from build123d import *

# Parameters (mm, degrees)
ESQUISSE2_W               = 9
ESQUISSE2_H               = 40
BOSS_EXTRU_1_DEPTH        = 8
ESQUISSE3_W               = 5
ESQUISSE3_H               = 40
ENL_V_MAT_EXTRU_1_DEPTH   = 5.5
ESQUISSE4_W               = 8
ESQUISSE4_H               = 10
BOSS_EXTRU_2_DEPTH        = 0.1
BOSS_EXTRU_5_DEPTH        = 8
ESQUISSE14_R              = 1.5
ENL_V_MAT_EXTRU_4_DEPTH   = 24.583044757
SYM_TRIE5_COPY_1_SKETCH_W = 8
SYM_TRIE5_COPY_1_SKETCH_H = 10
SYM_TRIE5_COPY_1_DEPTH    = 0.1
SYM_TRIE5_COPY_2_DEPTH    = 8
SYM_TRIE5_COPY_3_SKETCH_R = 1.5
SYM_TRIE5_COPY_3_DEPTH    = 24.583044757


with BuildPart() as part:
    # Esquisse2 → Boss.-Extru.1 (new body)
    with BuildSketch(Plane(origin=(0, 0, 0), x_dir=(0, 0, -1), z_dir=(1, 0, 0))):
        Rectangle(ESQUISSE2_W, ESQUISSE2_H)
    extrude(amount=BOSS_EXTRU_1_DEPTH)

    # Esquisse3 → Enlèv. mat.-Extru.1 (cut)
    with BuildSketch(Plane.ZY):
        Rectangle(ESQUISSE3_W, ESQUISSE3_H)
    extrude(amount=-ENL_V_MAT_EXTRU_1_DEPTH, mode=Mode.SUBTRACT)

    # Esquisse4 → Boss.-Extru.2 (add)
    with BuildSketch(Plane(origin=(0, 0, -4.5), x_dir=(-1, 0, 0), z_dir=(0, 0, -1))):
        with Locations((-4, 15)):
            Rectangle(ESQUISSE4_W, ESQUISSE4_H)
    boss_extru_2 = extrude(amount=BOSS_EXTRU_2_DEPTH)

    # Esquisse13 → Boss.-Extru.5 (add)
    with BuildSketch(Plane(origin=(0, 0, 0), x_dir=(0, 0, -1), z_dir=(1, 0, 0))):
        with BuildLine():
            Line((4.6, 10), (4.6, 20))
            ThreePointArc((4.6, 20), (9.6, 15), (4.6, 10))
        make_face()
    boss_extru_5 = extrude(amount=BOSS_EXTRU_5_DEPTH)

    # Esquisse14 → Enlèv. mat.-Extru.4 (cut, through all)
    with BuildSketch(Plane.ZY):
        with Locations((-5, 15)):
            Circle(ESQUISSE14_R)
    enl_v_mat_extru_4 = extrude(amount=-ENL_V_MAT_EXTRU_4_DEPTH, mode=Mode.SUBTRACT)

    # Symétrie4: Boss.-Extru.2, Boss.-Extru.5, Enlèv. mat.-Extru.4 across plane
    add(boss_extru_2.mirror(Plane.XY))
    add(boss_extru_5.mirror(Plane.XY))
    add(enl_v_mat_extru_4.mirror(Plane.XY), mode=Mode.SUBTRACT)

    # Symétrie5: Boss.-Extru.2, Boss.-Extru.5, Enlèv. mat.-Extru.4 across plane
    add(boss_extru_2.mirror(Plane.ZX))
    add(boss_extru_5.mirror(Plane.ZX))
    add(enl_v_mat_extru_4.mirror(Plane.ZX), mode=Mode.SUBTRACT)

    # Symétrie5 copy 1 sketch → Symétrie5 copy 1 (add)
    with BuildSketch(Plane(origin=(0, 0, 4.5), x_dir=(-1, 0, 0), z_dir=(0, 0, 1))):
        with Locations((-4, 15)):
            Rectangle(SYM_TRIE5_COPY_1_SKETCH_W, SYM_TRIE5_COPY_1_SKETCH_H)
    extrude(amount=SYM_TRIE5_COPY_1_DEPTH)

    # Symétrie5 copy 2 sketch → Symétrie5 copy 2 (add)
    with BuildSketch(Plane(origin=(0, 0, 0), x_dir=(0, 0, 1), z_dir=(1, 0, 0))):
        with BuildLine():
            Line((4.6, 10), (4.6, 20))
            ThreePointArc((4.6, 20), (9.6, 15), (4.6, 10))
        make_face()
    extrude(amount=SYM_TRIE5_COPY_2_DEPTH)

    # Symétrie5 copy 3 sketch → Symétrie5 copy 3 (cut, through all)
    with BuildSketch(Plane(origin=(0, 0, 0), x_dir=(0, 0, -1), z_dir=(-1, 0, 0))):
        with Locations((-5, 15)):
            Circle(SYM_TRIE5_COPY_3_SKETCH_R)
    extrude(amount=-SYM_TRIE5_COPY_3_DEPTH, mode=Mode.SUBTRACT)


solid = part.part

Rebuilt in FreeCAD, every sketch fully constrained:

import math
import FreeCAD as App
import Part
import Sketcher

V = App.Vector

doc = App.newDocument("Part")
params = doc.addObject("Spreadsheet::Sheet", "Params")
for row, (alias, value) in enumerate([
    ("sketch1_width", "40 mm"),
    ("sketch1_height", "9 mm"),
    ("pad1_length", "8 mm"),
    ("sketch2_width", "40 mm"),
    ("sketch2_height", "5 mm"),
    ("pocket1_length", "5.5 mm"),
    ("sketch3_width", "8 mm"),
    ("sketch3_height", "10 mm"),
    ("pad2_length", "0.1 mm"),
    ("sketch4_radius", "5 mm"),
    ("pad3_length", "8 mm"),
    ("sketch5_diameter", "3 mm"),
    ("sketch6_width", "8 mm"),
    ("sketch6_height", "10 mm"),
    ("pad4_length", "0.1 mm"),
    ("sketch7_radius", "5 mm"),
    ("pad5_length", "8 mm"),
    ("sketch8_diameter", "3 mm"),
], start=1):
    params.set(f"A{row}", alias)
    params.set(f"B{row}", "=" + value)
    params.setAlias(f"B{row}", alias)

body = doc.addObject("PartDesign::Body", "Body")

# Sketch on YZ plane
sketch1 = doc.addObject("Sketcher::SketchObject", "Sketch")
body.addObject(sketch1)
sketch1.AttachmentSupport = (doc.YZ_Plane, [""])
sketch1.MapMode = "FlatFace"
sketch1.addGeometry([
    Part.LineSegment(V(20, 4, 0), V(-20, 4, 0)),
    Part.LineSegment(V(-20, 4, 0), V(-20, -4, 0)),
    Part.LineSegment(V(-20, -4, 0), V(20, -4, 0)),
    Part.LineSegment(V(20, -4, 0), V(20, 4, 0)),
], False)
sketch1.addConstraint([
    Sketcher.Constraint("Coincident", 0, 2, 1, 1),
    Sketcher.Constraint("Coincident", 1, 2, 2, 1),
    Sketcher.Constraint("Coincident", 2, 2, 3, 1),
    Sketcher.Constraint("Coincident", 3, 2, 0, 1),
    Sketcher.Constraint("Horizontal", 0),
    Sketcher.Constraint("Vertical", 1),
    Sketcher.Constraint("Horizontal", 2),
    Sketcher.Constraint("Vertical", 3),
    Sketcher.Constraint("Symmetric", 0, 2, 2, 2, -1, 1),
    Sketcher.Constraint("DistanceX", 0, 2, 0, 1, 40.0),
    Sketcher.Constraint("DistanceY", 1, 2, 1, 1, 9.0),
])
sketch1.setExpression("Constraints[9]", "Params.sketch1_width")
sketch1.setExpression("Constraints[10]", "Params.sketch1_height")
pad1 = doc.addObject("PartDesign::Pad", "Pad")
body.addObject(pad1)
pad1.Profile = sketch1
pad1.setExpression("Length", "Params.pad1_length")

# Sketch on YZ plane
sketch2 = doc.addObject("Sketcher::SketchObject", "Sketch001")
body.addObject(sketch2)
sketch2.AttachmentSupport = (doc.YZ_Plane, [""])
sketch2.MapMode = "FlatFace"
sketch2.addGeometry([
    Part.LineSegment(V(20, -2, 0), V(-20, -2, 0)),
    Part.LineSegment(V(-20, -2, 0), V(-20, 2, 0)),
    Part.LineSegment(V(-20, 2, 0), V(20, 2, 0)),
    Part.LineSegment(V(20, 2, 0), V(20, -2, 0)),
], False)
sketch2.addConstraint([
    Sketcher.Constraint("Coincident", 0, 2, 1, 1),
    Sketcher.Constraint("Coincident", 1, 2, 2, 1),
    Sketcher.Constraint("Coincident", 2, 2, 3, 1),
    Sketcher.Constraint("Coincident", 3, 2, 0, 1),
    Sketcher.Constraint("Horizontal", 0),
    Sketcher.Constraint("Vertical", 1),
    Sketcher.Constraint("Horizontal", 2),
    Sketcher.Constraint("Vertical", 3),
    Sketcher.Constraint("Symmetric", 0, 2, 2, 2, -1, 1),
    Sketcher.Constraint("DistanceX", 0, 2, 0, 1, 40.0),
    Sketcher.Constraint("DistanceY", 1, 1, 1, 2, 5.0),
])
sketch2.setExpression("Constraints[9]", "Params.sketch2_width")
sketch2.setExpression("Constraints[10]", "Params.sketch2_height")
pocket1 = doc.addObject("PartDesign::Pocket", "Pocket")
body.addObject(pocket1)
pocket1.Profile = sketch2
pocket1.setExpression("Length", "Params.pocket1_length")
pocket1.Reversed = True

# Sketch on XY plane
sketch3 = doc.addObject("Sketcher::SketchObject", "Sketch002")
body.addObject(sketch3)
sketch3.AttachmentSupport = (doc.XY_Plane, [""])
sketch3.MapMode = "FlatFace"
sketch3.AttachmentOffset = App.Placement(V(0, 0, -4.5), App.Rotation())
sketch3.addGeometry([
    Part.LineSegment(V(8, 20, 0), V(8, 10, 0)),
    Part.LineSegment(V(8, 10, 0), V(0, 10, 0)),
    Part.LineSegment(V(0, 10, 0), V(0, 20, 0)),
    Part.LineSegment(V(0, 20, 0), V(8, 20, 0)),
], False)
sketch3.addConstraint([
    Sketcher.Constraint("Coincident", 0, 2, 1, 1),
    Sketcher.Constraint("Coincident", 1, 2, 2, 1),
    Sketcher.Constraint("Coincident", 2, 2, 3, 1),
    Sketcher.Constraint("Coincident", 3, 2, 0, 1),
    Sketcher.Constraint("Vertical", 0),
    Sketcher.Constraint("Horizontal", 1),
    Sketcher.Constraint("Vertical", 2),
    Sketcher.Constraint("Horizontal", 3),
    Sketcher.Constraint("PointOnObject", 1, 2, -2),
    Sketcher.Constraint("DistanceX", 1, 2, 1, 1, 8.0),
    Sketcher.Constraint("DistanceY", 0, 2, 0, 1, 10.0),
    Sketcher.Constraint("DistanceY", -1, 1, 0, 2, 10.0),
])
sketch3.setExpression("Constraints[9]", "Params.sketch3_width")
sketch3.setExpression("Constraints[10]", "Params.sketch3_height")
pad2 = doc.addObject("PartDesign::Pad", "Pad001")
body.addObject(pad2)
pad2.Profile = sketch3
pad2.setExpression("Length", "Params.pad2_length")
pad2.Reversed = True

# Sketch on YZ plane
sketch4 = doc.addObject("Sketcher::SketchObject", "Sketch003")
body.addObject(sketch4)
sketch4.AttachmentSupport = (doc.YZ_Plane, [""])
sketch4.MapMode = "FlatFace"
sketch4.addGeometry([
    Part.LineSegment(V(20, -5, 0), V(10, -5, 0)),
    Part.ArcOfCircle(Part.Circle(V(15, -5, 0), V(0, 0, 1), 5), math.radians(180), math.radians(360)),
], False)
sketch4.addConstraint([
    Sketcher.Constraint("Coincident", 0, 1, 1, 2),
    Sketcher.Constraint("Coincident", 1, 1, 0, 2),
    Sketcher.Constraint("Horizontal", 0),
    Sketcher.Constraint("Horizontal", 1, 3, 0, 1),
    Sketcher.Constraint("Radius", 1, 5.0),
    Sketcher.Constraint("DistanceX", -1, 1, 1, 3, 15.0),
    Sketcher.Constraint("DistanceY", 1, 3, -1, 1, 4.6),
])
sketch4.setExpression("Constraints[4]", "Params.sketch4_radius")
pad3 = doc.addObject("PartDesign::Pad", "Pad002")
body.addObject(pad3)
pad3.Profile = sketch4
pad3.setExpression("Length", "Params.pad3_length")

# Sketch on YZ plane
sketch5 = doc.addObject("Sketcher::SketchObject", "Sketch004")
body.addObject(sketch5)
sketch5.AttachmentSupport = (doc.YZ_Plane, [""])
sketch5.MapMode = "FlatFace"
sketch5.addGeometry(Part.Circle(V(15, -5, 0), V(0, 0, 1), 1.5), False)
sketch5.addConstraint([
    Sketcher.Constraint("Diameter", 0, 3.0),
    Sketcher.Constraint("DistanceX", -1, 1, 0, 3, 15.0),
    Sketcher.Constraint("DistanceY", 0, 3, -1, 1, 5.0),
])
sketch5.setExpression("Constraints[0]", "Params.sketch5_diameter")
pocket2 = doc.addObject("PartDesign::Pocket", "Pocket001")
body.addObject(pocket2)
pocket2.Profile = sketch5
pocket2.Type = "ThroughAll"
pocket2.Reversed = True
doc.recompute()

mirrored = doc.addObject("PartDesign::Mirrored", "Mirrored")
body.addObject(mirrored)
mirrored.Originals = [pad2, pad3, pocket2]
mirrored.MirrorPlane = (doc.XY_Plane, [""])
body.Tip = mirrored
doc.recompute()

mirrored2 = doc.addObject("PartDesign::Mirrored", "Mirrored001")
body.addObject(mirrored2)
mirrored2.Originals = [pad2, pad3, pocket2]
mirrored2.MirrorPlane = (doc.XZ_Plane, [""])
body.Tip = mirrored2

# Sketch on XY plane
sketch6 = doc.addObject("Sketcher::SketchObject", "Sketch005")
body.addObject(sketch6)
sketch6.AttachmentSupport = (doc.XY_Plane, [""])
sketch6.MapMode = "FlatFace"
sketch6.AttachmentOffset = App.Placement(V(0, 0, 4.5), App.Rotation())
sketch6.addGeometry([
    Part.LineSegment(V(8, -20, 0), V(8, -10, 0)),
    Part.LineSegment(V(8, -10, 0), V(0, -10, 0)),
    Part.LineSegment(V(0, -10, 0), V(0, -20, 0)),
    Part.LineSegment(V(0, -20, 0), V(8, -20, 0)),
], False)
sketch6.addConstraint([
    Sketcher.Constraint("Coincident", 0, 2, 1, 1),
    Sketcher.Constraint("Coincident", 1, 2, 2, 1),
    Sketcher.Constraint("Coincident", 2, 2, 3, 1),
    Sketcher.Constraint("Coincident", 3, 2, 0, 1),
    Sketcher.Constraint("Vertical", 0),
    Sketcher.Constraint("Horizontal", 1),
    Sketcher.Constraint("Vertical", 2),
    Sketcher.Constraint("Horizontal", 3),
    Sketcher.Constraint("PointOnObject", 1, 2, -2),
    Sketcher.Constraint("DistanceX", 1, 2, 1, 1, 8.0),
    Sketcher.Constraint("DistanceY", 0, 1, 0, 2, 10.0),
    Sketcher.Constraint("DistanceY", 0, 2, -1, 1, 10.0),
])
sketch6.setExpression("Constraints[9]", "Params.sketch6_width")
sketch6.setExpression("Constraints[10]", "Params.sketch6_height")
pad4 = doc.addObject("PartDesign::Pad", "Pad003")
body.addObject(pad4)
pad4.Profile = sketch6
pad4.setExpression("Length", "Params.pad4_length")

# Sketch on YZ plane
sketch7 = doc.addObject("Sketcher::SketchObject", "Sketch006")
body.addObject(sketch7)
sketch7.AttachmentSupport = (doc.YZ_Plane, [""])
sketch7.MapMode = "FlatFace"
sketch7.addGeometry([
    Part.LineSegment(V(-20, 5, 0), V(-10, 5, 0)),
    Part.ArcOfCircle(Part.Circle(V(-15, 5, 0), V(0, 0, 1), 5), math.radians(0), math.radians(180)),
], False)
sketch7.addConstraint([
    Sketcher.Constraint("Coincident", 0, 1, 1, 2),
    Sketcher.Constraint("Coincident", 1, 1, 0, 2),
    Sketcher.Constraint("Horizontal", 0),
    Sketcher.Constraint("Horizontal", 1, 3, 0, 1),
    Sketcher.Constraint("Radius", 1, 5.0),
    Sketcher.Constraint("DistanceX", 1, 3, -1, 1, 15.0),
    Sketcher.Constraint("DistanceY", -1, 1, 1, 3, 4.6),
])
sketch7.setExpression("Constraints[4]", "Params.sketch7_radius")
pad5 = doc.addObject("PartDesign::Pad", "Pad004")
body.addObject(pad5)
pad5.Profile = sketch7
pad5.setExpression("Length", "Params.pad5_length")

# Sketch on YZ plane
sketch8 = doc.addObject("Sketcher::SketchObject", "Sketch007")
body.addObject(sketch8)
sketch8.AttachmentSupport = (doc.YZ_Plane, [""])
sketch8.MapMode = "FlatFace"
sketch8.addGeometry(Part.Circle(V(-15, 5, 0), V(0, 0, 1), 1.5), False)
sketch8.addConstraint([
    Sketcher.Constraint("Diameter", 0, 3.0),
    Sketcher.Constraint("DistanceX", 0, 3, -1, 1, 15.0),
    Sketcher.Constraint("DistanceY", -1, 1, 0, 3, 5.0),
])
sketch8.setExpression("Constraints[0]", "Params.sketch8_diameter")
pocket3 = doc.addObject("PartDesign::Pocket", "Pocket002")
body.addObject(pocket3)
pocket3.Profile = sketch8
pocket3.Type = "ThroughAll"
pocket3.Reversed = True

doc.recompute()
